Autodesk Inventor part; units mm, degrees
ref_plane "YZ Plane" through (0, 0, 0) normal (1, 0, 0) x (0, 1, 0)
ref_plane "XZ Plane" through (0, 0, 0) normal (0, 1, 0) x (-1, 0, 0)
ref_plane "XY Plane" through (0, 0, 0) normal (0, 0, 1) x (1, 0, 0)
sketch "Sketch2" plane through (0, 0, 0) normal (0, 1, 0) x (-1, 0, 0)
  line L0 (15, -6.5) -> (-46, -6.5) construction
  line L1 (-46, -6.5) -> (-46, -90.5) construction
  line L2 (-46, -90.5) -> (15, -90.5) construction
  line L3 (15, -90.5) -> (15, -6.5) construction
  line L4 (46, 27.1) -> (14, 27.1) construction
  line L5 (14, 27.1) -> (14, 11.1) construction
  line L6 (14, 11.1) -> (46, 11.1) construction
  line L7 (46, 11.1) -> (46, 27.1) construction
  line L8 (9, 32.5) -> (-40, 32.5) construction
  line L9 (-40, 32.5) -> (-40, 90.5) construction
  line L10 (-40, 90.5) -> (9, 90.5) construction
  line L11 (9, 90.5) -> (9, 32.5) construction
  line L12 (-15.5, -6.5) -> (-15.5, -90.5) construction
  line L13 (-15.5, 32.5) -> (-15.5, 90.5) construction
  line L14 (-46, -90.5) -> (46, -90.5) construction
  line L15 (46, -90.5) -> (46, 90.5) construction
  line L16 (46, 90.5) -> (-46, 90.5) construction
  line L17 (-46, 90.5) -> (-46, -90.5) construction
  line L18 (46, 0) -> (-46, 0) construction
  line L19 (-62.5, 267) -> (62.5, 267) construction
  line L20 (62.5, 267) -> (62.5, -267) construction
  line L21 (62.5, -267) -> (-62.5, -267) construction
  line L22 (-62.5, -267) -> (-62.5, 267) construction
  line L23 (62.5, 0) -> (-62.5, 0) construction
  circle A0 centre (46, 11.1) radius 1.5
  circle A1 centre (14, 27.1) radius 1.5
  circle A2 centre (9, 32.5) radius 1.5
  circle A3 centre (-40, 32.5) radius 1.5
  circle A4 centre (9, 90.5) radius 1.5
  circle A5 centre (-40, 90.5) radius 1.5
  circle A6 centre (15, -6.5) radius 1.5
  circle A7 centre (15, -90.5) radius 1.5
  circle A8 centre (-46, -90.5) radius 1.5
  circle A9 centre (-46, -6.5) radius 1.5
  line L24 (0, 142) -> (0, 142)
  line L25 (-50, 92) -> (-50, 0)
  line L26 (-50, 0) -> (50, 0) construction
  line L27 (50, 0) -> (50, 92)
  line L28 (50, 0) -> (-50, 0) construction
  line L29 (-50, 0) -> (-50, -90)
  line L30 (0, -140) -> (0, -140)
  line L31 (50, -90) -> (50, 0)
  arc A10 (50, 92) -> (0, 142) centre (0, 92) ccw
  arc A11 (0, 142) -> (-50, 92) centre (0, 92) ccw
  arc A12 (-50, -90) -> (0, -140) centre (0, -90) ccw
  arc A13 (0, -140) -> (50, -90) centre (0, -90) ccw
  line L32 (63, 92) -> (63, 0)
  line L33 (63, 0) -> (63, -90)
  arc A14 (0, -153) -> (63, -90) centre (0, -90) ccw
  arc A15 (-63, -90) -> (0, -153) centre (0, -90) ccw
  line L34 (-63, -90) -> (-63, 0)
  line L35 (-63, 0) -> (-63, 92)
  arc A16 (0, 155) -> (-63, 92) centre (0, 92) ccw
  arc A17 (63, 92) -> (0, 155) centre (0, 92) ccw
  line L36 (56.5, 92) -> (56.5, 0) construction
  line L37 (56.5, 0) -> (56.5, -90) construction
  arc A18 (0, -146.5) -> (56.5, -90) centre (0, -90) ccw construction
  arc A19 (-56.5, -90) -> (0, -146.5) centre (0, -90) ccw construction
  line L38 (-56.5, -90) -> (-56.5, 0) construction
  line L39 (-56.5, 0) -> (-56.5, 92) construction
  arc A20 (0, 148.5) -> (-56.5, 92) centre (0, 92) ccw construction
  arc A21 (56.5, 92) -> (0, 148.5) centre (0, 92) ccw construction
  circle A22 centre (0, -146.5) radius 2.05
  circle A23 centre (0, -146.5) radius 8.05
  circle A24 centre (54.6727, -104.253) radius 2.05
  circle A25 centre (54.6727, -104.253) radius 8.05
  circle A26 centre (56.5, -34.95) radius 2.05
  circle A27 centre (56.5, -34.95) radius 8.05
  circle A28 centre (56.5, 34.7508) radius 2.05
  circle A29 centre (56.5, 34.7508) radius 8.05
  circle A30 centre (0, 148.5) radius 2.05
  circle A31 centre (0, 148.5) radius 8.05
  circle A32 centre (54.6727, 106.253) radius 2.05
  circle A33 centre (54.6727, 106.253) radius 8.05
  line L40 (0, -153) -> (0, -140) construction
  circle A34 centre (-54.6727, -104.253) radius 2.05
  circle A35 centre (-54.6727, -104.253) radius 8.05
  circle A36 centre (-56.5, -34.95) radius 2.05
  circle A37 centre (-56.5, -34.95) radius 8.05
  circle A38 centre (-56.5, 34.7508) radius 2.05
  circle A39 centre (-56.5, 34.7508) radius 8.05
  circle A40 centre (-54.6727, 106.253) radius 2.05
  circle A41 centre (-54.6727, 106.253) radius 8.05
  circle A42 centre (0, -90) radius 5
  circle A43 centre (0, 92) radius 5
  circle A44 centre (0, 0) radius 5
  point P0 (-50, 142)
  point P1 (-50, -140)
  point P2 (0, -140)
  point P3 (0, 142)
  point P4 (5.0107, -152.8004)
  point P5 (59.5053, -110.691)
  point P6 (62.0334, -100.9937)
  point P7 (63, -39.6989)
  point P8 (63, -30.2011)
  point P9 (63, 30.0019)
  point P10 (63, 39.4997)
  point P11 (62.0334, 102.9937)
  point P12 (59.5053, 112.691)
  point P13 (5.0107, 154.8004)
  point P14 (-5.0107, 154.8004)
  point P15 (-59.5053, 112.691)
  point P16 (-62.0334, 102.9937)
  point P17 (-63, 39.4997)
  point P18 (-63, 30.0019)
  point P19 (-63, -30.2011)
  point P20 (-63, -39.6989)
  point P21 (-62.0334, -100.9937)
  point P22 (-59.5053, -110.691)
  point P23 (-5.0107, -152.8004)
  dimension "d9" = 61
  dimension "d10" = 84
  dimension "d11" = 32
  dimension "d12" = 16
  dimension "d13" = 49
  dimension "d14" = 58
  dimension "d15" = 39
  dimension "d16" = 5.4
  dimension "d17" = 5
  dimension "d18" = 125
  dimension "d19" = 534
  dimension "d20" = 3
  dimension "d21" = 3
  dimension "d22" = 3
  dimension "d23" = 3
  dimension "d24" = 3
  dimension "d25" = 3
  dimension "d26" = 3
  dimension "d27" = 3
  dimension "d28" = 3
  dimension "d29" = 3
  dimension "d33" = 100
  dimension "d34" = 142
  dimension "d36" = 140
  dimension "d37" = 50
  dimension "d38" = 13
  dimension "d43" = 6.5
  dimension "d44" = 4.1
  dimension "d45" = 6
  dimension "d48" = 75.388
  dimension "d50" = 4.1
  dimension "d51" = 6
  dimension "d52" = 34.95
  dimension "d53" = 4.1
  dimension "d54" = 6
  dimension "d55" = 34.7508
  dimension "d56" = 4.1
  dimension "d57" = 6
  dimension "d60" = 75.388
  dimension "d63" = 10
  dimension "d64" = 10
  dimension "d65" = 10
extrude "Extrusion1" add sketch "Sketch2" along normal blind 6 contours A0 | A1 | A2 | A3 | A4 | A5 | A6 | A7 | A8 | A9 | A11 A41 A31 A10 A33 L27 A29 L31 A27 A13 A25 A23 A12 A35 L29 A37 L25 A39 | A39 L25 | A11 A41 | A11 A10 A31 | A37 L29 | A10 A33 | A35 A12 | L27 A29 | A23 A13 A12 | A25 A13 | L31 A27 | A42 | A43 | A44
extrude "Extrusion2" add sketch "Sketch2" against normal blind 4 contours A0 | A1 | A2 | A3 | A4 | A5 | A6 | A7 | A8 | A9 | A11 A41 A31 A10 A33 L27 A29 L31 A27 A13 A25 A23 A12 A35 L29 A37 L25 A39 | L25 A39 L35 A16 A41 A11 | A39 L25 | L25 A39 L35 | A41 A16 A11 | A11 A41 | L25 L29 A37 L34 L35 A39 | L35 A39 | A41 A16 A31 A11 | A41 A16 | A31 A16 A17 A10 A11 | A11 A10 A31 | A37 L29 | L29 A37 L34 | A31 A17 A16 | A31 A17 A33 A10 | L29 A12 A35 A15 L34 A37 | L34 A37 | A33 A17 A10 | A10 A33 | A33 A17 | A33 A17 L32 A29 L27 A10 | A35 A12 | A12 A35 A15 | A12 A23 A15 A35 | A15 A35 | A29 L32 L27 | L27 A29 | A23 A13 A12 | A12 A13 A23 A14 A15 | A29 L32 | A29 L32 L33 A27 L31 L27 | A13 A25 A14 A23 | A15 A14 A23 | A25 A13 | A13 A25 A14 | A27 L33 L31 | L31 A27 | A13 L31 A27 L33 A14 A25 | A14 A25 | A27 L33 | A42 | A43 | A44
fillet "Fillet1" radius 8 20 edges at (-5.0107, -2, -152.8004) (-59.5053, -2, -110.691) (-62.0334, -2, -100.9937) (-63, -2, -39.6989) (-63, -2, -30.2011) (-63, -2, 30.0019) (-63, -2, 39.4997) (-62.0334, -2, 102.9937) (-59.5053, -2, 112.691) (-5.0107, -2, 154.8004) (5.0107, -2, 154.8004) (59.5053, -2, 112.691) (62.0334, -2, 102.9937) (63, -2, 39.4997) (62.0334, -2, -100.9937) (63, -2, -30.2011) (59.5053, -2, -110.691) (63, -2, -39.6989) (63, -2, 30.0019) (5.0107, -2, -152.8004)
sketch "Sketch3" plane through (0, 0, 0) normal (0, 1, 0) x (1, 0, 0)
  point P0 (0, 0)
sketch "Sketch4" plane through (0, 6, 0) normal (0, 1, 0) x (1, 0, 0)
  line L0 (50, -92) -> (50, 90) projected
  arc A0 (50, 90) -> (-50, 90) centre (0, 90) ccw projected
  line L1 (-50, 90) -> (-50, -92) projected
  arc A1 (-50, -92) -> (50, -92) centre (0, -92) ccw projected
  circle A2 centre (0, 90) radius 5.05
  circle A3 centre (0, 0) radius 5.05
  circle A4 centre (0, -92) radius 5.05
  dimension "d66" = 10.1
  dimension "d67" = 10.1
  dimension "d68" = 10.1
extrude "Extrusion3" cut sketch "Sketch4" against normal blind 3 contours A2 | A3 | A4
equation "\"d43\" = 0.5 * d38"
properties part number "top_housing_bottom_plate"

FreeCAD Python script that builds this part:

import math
import FreeCAD as App
import Part
import Sketcher

V = App.Vector


def edges_at(feature, points):
    """Names of the edges that pass closest to the given points."""
    edges = feature.Shape.Edges
    near = lambda p: min(range(len(edges)), key=lambda i: edges[i].distToShape(Part.Vertex(*p))[0])
    return sorted({f"Edge{near(p) + 1}" for p in points})

doc = App.newDocument("Part")
params = doc.addObject("Spreadsheet::Sheet", "Params")
for row, (alias, value) in enumerate([
    ("sketch1_radius", "50 mm"),
    ("sketch1_height", "182 mm"),
    ("pad1_length", "6 mm"),
    ("sketch2_diameter", "4.1 mm"),
    ("sketch2_radius", "63 mm"),
    ("sketch2_radius2", "8.05 mm"),
    ("pad2_length", "4 mm"),
    ("fillet_radius", "8 mm"),
    ("sketch3_diameter", "10.1 mm"),
    ("pocket1_length", "3 mm"),
], start=1):
    params.set(f"A{row}", alias)
    params.set(f"B{row}", "=" + value)
    params.setAlias(f"B{row}", alias)

body = doc.addObject("PartDesign::Body", "Body")

# Sketch on XZ plane
sketch1 = body.newObject("Sketcher::SketchObject", "Sketch")
sketch1.AttachmentSupport = (doc.getObject("XZ_Plane"), [""])
sketch1.MapMode = "FlatFace"
sketch1.addGeometry([
    Part.LineSegment(V(50, 92, 0), V(50, -90, 0)),
    Part.ArcOfCircle(Part.Circle(V(0, -90, 0), V(0, 0, 1), 50), math.radians(180), math.radians(360)),
    Part.LineSegment(V(-50, -90, 0), V(-50, 92, 0)),
    Part.ArcOfCircle(Part.Circle(V(0, 92, 0), V(0, 0, 1), 50), math.radians(0), math.radians(180)),
], False)
sketch1.addConstraint([
    Sketcher.Constraint("Tangent", 0, 2, 1, 2),
    Sketcher.Constraint("Tangent", 1, 1, 2, 1),
    Sketcher.Constraint("Tangent", 2, 2, 3, 2),
    Sketcher.Constraint("Tangent", 3, 1, 0, 1),
    Sketcher.Constraint("Vertical", 0),
    Sketcher.Constraint("Vertical", 2),
    Sketcher.Constraint("PointOnObject", 1, 3, -2),
    Sketcher.Constraint("Radius", 1, 50.0),
    Sketcher.Constraint("DistanceY", 0, 2, 0, 1, 182.0),
    Sketcher.Constraint("DistanceY", 1, 3, -1, 1, 90.0),
])
sketch1.setExpression("Constraints[7]", "Params.sketch1_radius")
sketch1.setExpression("Constraints[8]", "Params.sketch1_height")
pad1 = body.newObject("PartDesign::Pad", "Pad")
pad1.Profile = sketch1
pad1.setExpression("Length", "Params.pad1_length")
pad1.Reversed = True

# Sketch on XZ plane
sketch2 = body.newObject("Sketcher::SketchObject", "Sketch001")
sketch2.AttachmentSupport = (doc.getObject("XZ_Plane"), [""])
sketch2.MapMode = "FlatFace"
sketch2.addGeometry([
    Part.LineSegment(V(63, 92, 0), V(63, 39.5, 0)),  # 0
    Part.ArcOfCircle(Part.Circle(V(56.5, 34.8, 0), V(0, 0, 1), 8.1), math.radians(-36), math.radians(36)),  # 1
    Part.LineSegment(V(63, 30, 0), V(63, -30.2, 0)),  # 2
    Part.ArcOfCircle(Part.Circle(V(56.5, -35, 0), V(0, 0, 1), 8.1), math.radians(-36), math.radians(36)),  # 3
    Part.LineSegment(V(63, -39.7, 0), V(63, -90, 0)),  # 4
    Part.ArcOfCircle(Part.Circle(V(0, -90, 0), V(0, 0, 1), 63), math.radians(-10.05), math.radians(0)),  # 5
    Part.ArcOfCircle(Part.Circle(V(54.7, -104.3, 0), V(0, 0, 1), 8.1), math.radians(-53), math.radians(24)),  # 6
    Part.ArcOfCircle(Part.Circle(V(0, -90, 0), V(0, 0, 1), 63), math.radians(-85), math.radians(-19)),  # 7
    Part.ArcOfCircle(Part.Circle(V(0, -146.5, 0), V(0, 0, 1), 8.1), math.radians(-128), math.radians(-52)),  # 8
    Part.ArcOfCircle(Part.Circle(V(0, -90, 0), V(0, 0, 1), 63), math.radians(-161), math.radians(-95)),  # 9
    Part.ArcOfCircle(Part.Circle(V(-54.7, -104.3, 0), V(0, 0, 1), 8.1), math.radians(156), math.radians(233)),  # 10
    Part.ArcOfCircle(Part.Circle(V(0, -90, 0), V(0, 0, 1), 63), math.radians(180), math.radians(190.05)),  # 11
    Part.LineSegment(V(-63, -90, 0), V(-63, -39.7, 0)),  # 12
    Part.ArcOfCircle(Part.Circle(V(-56.5, -35, 0), V(0, 0, 1), 8.1), math.radians(144), math.radians(216)),  # 13
    Part.LineSegment(V(-63, -30.2, 0), V(-63, 30, 0)),  # 14
    Part.ArcOfCircle(Part.Circle(V(-56.5, 34.8, 0), V(0, 0, 1), 8.1), math.radians(144), math.radians(216)),  # 15
    Part.LineSegment(V(-63, 39.5, 0), V(-63, 92, 0)),  # 16
    Part.ArcOfCircle(Part.Circle(V(0, 92, 0), V(0, 0, 1), 63), math.radians(169.95), math.radians(180)),  # 17
    Part.ArcOfCircle(Part.Circle(V(-54.7, 106.3, 0), V(0, 0, 1), 8.1), math.radians(127), math.radians(204)),  # 18
    Part.ArcOfCircle(Part.Circle(V(0, 92, 0), V(0, 0, 1), 63), math.radians(95), math.radians(161)),  # 19
    Part.ArcOfCircle(Part.Circle(V(0, 148.5, 0), V(0, 0, 1), 8.1), math.radians(52), math.radians(128)),  # 20
    Part.ArcOfCircle(Part.Circle(V(0, 92, 0), V(0, 0, 1), 63), math.radians(19), math.radians(85)),  # 21
    Part.ArcOfCircle(Part.Circle(V(54.7, 106.3, 0), V(0, 0, 1), 8.1), math.radians(-24), math.radians(53)),  # 22
    Part.ArcOfCircle(Part.Circle(V(0, 92, 0), V(0, 0, 1), 63), math.radians(0), math.radians(10.05)),  # 23
    Part.Circle(V(54.7, 106.3, 0), V(0, 0, 1), 2),  # 24
    Part.Circle(V(56.5, 34.8, 0), V(0, 0, 1), 2),  # 25
    Part.Circle(V(0, 148.5, 0), V(0, 0, 1), 2),  # 26
    Part.Circle(V(-54.7, 106.3, 0), V(0, 0, 1), 2),  # 27
    Part.Circle(V(-56.5, 34.8, 0), V(0, 0, 1), 2),  # 28
    Part.Circle(V(-56.5, -35, 0), V(0, 0, 1), 2),  # 29
    Part.Circle(V(-54.7, -104.3, 0), V(0, 0, 1), 2),  # 30
    Part.Circle(V(0, -146.5, 0), V(0, 0, 1), 2),  # 31
    Part.Circle(V(54.7, -104.3, 0), V(0, 0, 1), 2),  # 32
    Part.Circle(V(56.5, -35, 0), V(0, 0, 1), 2),  # 33
], False)
sketch2.addConstraint([
    Sketcher.Constraint("Coincident", 0, 2, 1, 2),
    Sketcher.Constraint("Coincident", 1, 1, 2, 1),
    Sketcher.Constraint("Coincident", 2, 2, 3, 2),
    Sketcher.Constraint("Coincident", 3, 1, 4, 1),
    Sketcher.Constraint("Tangent", 4, 2, 5, 2),
    Sketcher.Constraint("Coincident", 5, 1, 6, 2),
    Sketcher.Constraint("Coincident", 6, 1, 7, 2),
    Sketcher.Constraint("Coincident", 7, 1, 8, 2),
    Sketcher.Constraint("Coincident", 8, 1, 9, 2),
    Sketcher.Constraint("Coincident", 9, 1, 10, 2),
    Sketcher.Constraint("Coincident", 10, 1, 11, 2),
    Sketcher.Constraint("Tangent", 11, 1, 12, 1),
    Sketcher.Constraint("Coincident", 12, 2, 13, 2),
    Sketcher.Constraint("Coincident", 13, 1, 14, 1),
    Sketcher.Constraint("Coincident", 14, 2, 15, 2),
    Sketcher.Constraint("Coincident", 15, 1, 16, 1),
    Sketcher.Constraint("Tangent", 16, 2, 17, 2),
    Sketcher.Constraint("Coincident", 17, 1, 18, 2),
    Sketcher.Constraint("Coincident", 18, 1, 19, 2),
    Sketcher.Constraint("Coincident", 19, 1, 20, 2),
    Sketcher.Constraint("Coincident", 20, 1, 21, 2),
    Sketcher.Constraint("Coincident", 21, 1, 22, 2),
    Sketcher.Constraint("Coincident", 22, 1, 23, 2),
    Sketcher.Constraint("Tangent", 23, 1, 0, 1),
    Sketcher.Constraint("Vertical", 0),
    Sketcher.Constraint("Vertical", 2),
    Sketcher.Constraint("Vertical", 4),
    Sketcher.Constraint("Vertical", 12),
    Sketcher.Constraint("Vertical", 14),
    Sketcher.Constraint("Vertical", 16),
    Sketcher.Constraint("Coincident", 7, 3, 5, 3),
    Sketcher.Constraint("Coincident", 9, 3, 5, 3),
    Sketcher.Constraint("Coincident", 11, 3, 5, 3),
    Sketcher.Constraint("Coincident", 19, 3, 17, 3),
    Sketcher.Constraint("Coincident", 21, 3, 17, 3),
    Sketcher.Constraint("Coincident", 23, 3, 17, 3),
    Sketcher.Constraint("Coincident", 24, 3, 22, 3),
    Sketcher.Constraint("Coincident", 25, 3, 1, 3),
    Sketcher.Constraint("Coincident", 26, 3, 20, 3),
    Sketcher.Constraint("Coincident", 27, 3, 18, 3),
    Sketcher.Constraint("Coincident", 28, 3, 15, 3),
    Sketcher.Constraint("Coincident", 29, 3, 13, 3),
    Sketcher.Constraint("Coincident", 30, 3, 10, 3),
    Sketcher.Constraint("Coincident", 31, 3, 8, 3),
    Sketcher.Constraint("Coincident", 32, 3, 6, 3),
    Sketcher.Constraint("Coincident", 33, 3, 3, 3),
    Sketcher.Constraint("Equal", 1, 3),
    Sketcher.Constraint("Equal", 3, 6),
    Sketcher.Constraint("Equal", 5, 7),
    Sketcher.Constraint("Equal", 6, 8),
    Sketcher.Constraint("Equal", 7, 9),
    Sketcher.Constraint("Equal", 8, 10),
    Sketcher.Constraint("Equal", 9, 11),
    Sketcher.Constraint("Equal", 10, 13),
    Sketcher.Constraint("Equal", 13, 15),
    Sketcher.Constraint("Equal", 11, 17),
    Sketcher.Constraint("Equal", 15, 18),
    Sketcher.Constraint("Equal", 17, 19),
    Sketcher.Constraint("Equal", 18, 20),
    Sketcher.Constraint("Equal", 19, 21),
    Sketcher.Constraint("Equal", 20, 22),
    Sketcher.Constraint("Equal", 21, 23),
    Sketcher.Constraint("Equal", 24, 25),
    Sketcher.Constraint("Equal", 25, 26),
    Sketcher.Constraint("Equal", 26, 27),
    Sketcher.Constraint("Equal", 27, 28),
    Sketcher.Constraint("Equal", 28, 29),
    Sketcher.Constraint("Equal", 29, 30),
    Sketcher.Constraint("Equal", 30, 31),
    Sketcher.Constraint("Equal", 31, 32),
    Sketcher.Constraint("Equal", 32, 33),
    Sketcher.Constraint("Symmetric", 6, 3, 10, 3, -2),
    Sketcher.Constraint("Symmetric", 3, 3, 13, 3, -2),
    Sketcher.Constraint("Symmetric", 1, 3, 15, 3, -2),
    Sketcher.Constraint("Symmetric", 18, 3, 22, 3, -2),
    Sketcher.Constraint("Symmetric", 7, 1, 8, 1, -2),
    Sketcher.Constraint("Symmetric", 19, 1, 20, 1, -2),
    Sketcher.Constraint("Horizontal", 2, 2, 13, 1),
    Sketcher.Constraint("Vertical", 1, 3, 3, 3),
    Sketcher.Constraint("Vertical", 10, 3, 18, 3),
    Sketcher.Constraint("Vertical", 0, 2, 1, 1),
    Sketcher.Constraint("Vertical", 10, 1, 17, 1),
    Sketcher.Constraint("Vertical", 8, 1, 19, 1),
    Sketcher.Constraint("Diameter", 24, 4.1),
    Sketcher.Constraint("Radius", 5, 63.0),
    Sketcher.Constraint("DistanceX", 1, 3, 0, 2, 6.5),
    Sketcher.Constraint("DistanceY", 3, 3, -1, 1, 34.95),
    Sketcher.Constraint("Radius", 1, 8.05),
    Sketcher.Constraint("DistanceY", 5, 3, -1, 1, 90.0),
    Sketcher.Constraint("DistanceY", -1, 1, 17, 3, 92.0),
    Sketcher.Constraint("DistanceY", -1, 1, 1, 3, 34.7508),
    Sketcher.Constraint("DistanceY", 8, 3, -1, 1, 146.5),
    Sketcher.Constraint("DistanceY", 6, 3, -1, 1, 104.253),
    Sketcher.Constraint("DistanceY", 6, 1, -1, 1, 110.691),
])
sketch2.setExpression("Constraints[83]", "Params.sketch2_diameter")
sketch2.setExpression("Constraints[84]", "Params.sketch2_radius")
sketch2.setExpression("Constraints[87]", "Params.sketch2_radius2")
pad2 = body.newObject("PartDesign::Pad", "Pad001")
pad2.Profile = sketch2
pad2.setExpression("Length", "Params.pad2_length")
doc.recompute()

fillet = body.newObject("PartDesign::Fillet", "Fillet")
fillet.Base = (pad2, edges_at(pad2, [
    (-5.011, -2, -152.8),
    (-59.505, -2, -110.691),
    (-62.033, -2, -100.994),
    (-63, -2, -39.699),
    (-63, -2, -30.201),
    (-63, -2, 30.002),
    (-63, -2, 39.5),
    (-62.033, -2, 102.994),
    (-59.505, -2, 112.691),
    (-5.011, -2, 154.8),
    (5.011, -2, 154.8),
    (59.505, -2, 112.691),
    (62.033, -2, 102.994),
    (63, -2, 39.5),
    (62.033, -2, -100.994),
    (63, -2, -30.201),
    (59.505, -2, -110.691),
    (63, -2, -39.699),
    (63, -2, 30.002),
    (5.011, -2, -152.8),
]))
fillet.setExpression("Radius", "Params.fillet_radius")

# Sketch on XZ plane
sketch3 = body.newObject("Sketcher::SketchObject", "Sketch002")
sketch3.AttachmentSupport = (doc.getObject("XZ_Plane"), [""])
sketch3.MapMode = "FlatFace"
sketch3.AttachmentOffset = App.Placement(V(0, 0, -6), App.Rotation())
sketch3.addGeometry([
    Part.Circle(V(0, -90, 0), V(0, 0, 1), 5),
    Part.Circle(V(0, 0, 0), V(0, 0, 1), 5),
    Part.Circle(V(0, 92, 0), V(0, 0, 1), 5),
], False)
sketch3.addConstraint([
    Sketcher.Constraint("Coincident", 1, 3, -1, 1),
    Sketcher.Constraint("Equal", 0, 1),
    Sketcher.Constraint("Equal", 1, 2),
    Sketcher.Constraint("PointOnObject", 0, 3, -2),
    Sketcher.Constraint("PointOnObject", 2, 3, -2),
    Sketcher.Constraint("Diameter", 0, 10.1),
    Sketcher.Constraint("DistanceY", 0, 3, -1, 1, 90.0),
    Sketcher.Constraint("DistanceY", -1, 1, 2, 3, 92.0),
])
sketch3.setExpression("Constraints[5]", "Params.sketch3_diameter")
pocket1 = body.newObject("PartDesign::Pocket", "Pocket")
pocket1.Profile = sketch3
pocket1.setExpression("Length", "Params.pocket1_length")
pocket1.Reversed = True

doc.recompute()
